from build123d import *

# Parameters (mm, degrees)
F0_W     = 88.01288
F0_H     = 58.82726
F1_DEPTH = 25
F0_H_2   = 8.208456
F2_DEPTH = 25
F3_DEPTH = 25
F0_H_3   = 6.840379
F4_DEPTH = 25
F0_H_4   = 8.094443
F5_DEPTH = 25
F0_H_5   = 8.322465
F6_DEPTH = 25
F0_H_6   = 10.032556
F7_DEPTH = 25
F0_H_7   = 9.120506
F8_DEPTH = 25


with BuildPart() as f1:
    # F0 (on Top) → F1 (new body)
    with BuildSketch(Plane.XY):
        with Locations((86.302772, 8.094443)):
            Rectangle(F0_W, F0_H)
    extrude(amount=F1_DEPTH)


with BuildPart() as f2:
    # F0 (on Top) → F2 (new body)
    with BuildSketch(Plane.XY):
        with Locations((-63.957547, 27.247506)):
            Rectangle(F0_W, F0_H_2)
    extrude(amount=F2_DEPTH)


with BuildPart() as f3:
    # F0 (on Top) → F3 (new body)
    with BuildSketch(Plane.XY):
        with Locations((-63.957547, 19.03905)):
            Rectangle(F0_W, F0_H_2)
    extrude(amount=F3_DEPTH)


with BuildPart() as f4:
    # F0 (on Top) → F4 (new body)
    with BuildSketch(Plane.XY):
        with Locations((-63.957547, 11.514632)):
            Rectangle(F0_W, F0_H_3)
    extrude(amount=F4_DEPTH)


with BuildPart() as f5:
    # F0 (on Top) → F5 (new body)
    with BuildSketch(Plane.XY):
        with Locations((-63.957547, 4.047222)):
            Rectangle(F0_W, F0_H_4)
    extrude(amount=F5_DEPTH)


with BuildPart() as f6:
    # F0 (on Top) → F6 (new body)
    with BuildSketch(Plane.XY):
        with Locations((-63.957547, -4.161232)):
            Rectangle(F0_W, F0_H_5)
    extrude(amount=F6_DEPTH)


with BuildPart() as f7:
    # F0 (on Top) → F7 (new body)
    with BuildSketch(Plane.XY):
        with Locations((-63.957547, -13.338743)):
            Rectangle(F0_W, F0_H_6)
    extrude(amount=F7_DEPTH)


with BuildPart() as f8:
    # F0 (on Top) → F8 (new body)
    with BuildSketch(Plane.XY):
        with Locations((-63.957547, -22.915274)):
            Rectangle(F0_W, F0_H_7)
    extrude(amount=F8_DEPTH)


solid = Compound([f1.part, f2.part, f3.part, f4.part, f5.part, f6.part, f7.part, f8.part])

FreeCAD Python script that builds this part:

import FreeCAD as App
import Part
import Sketcher
from FreeCAD import Vector


def add_polygon(sketch, points):
    """Adds a closed chain of lines whose ends are joined by coincident constraints."""
    first, n = sketch.GeometryCount, len(points)
    for a, b in zip(points, points[1:] + points[:1]):
        sketch.addGeometry(Part.LineSegment(App.Vector(*a, 0), App.Vector(*b, 0)), False)
    for i in range(n):
        sketch.addConstraint(Sketcher.Constraint("Coincident", first + i, 2, first + (i + 1) % n, 1))

doc = App.newDocument("Part")
body = doc.addObject("PartDesign::Body", "Body")

# Sketch on XY plane
sketch1 = body.newObject("Sketcher::SketchObject", "Sketch")
sketch1.AttachmentSupport = (doc.getObject("XY_Plane"), [""])
sketch1.MapMode = "FlatFace"
add_polygon(sketch1, [(42.296332, 37.508073), (42.296332, -21.319187), (130.309212, -21.319187), (130.309212, 37.508073)])  # lines 0-3
sketch1.addConstraint([
    Sketcher.Constraint("Vertical", 0),
    Sketcher.Constraint("Horizontal", 1),
    Sketcher.Constraint("Vertical", 2),
    Sketcher.Constraint("Horizontal", 3),
    Sketcher.Constraint("DistanceX", 1, 1, 1, 2, 88.01288),
    Sketcher.Constraint("DistanceY", 0, 2, 0, 1, 58.82726),
    Sketcher.Constraint("DistanceX", -1, 1, 1, 2, 130.309212),
    Sketcher.Constraint("DistanceY", 0, 2, -1, 1, 21.319187),
])
pad1 = body.newObject("PartDesign::Pad", "Pad")
pad1.Profile = sketch1
pad1.Length = 25
body2 = doc.addObject("PartDesign::Body", "Body001")

# Sketch on XY plane
sketch2 = body2.newObject("Sketcher::SketchObject", "Sketch001")
sketch2.AttachmentSupport = (doc.getObject("XY_Plane001"), [""])
sketch2.MapMode = "FlatFace"
add_polygon(sketch2, [(-107.963987, 31.351734), (-107.963987, 23.143278), (-19.951107, 23.143278), (-19.951107, 31.351734)])  # lines 0-3
sketch2.addConstraint([
    Sketcher.Constraint("Vertical", 0),
    Sketcher.Constraint("Horizontal", 1),
    Sketcher.Constraint("Vertical", 2),
    Sketcher.Constraint("Horizontal", 3),
    Sketcher.Constraint("DistanceX", 1, 1, 1, 2, 88.01288),
    Sketcher.Constraint("DistanceY", 0, 2, 0, 1, 8.208456),
    Sketcher.Constraint("DistanceX", 0, 2, -1, 1, 107.963987),
    Sketcher.Constraint("DistanceY", -1, 1, 0, 2, 23.143278),
])
pad2 = body2.newObject("PartDesign::Pad", "Pad001")
pad2.Profile = sketch2
pad2.Length = 25
body3 = doc.addObject("PartDesign::Body", "Body002")

# Sketch on XY plane
sketch3 = body3.newObject("Sketcher::SketchObject", "Sketch002")
sketch3.AttachmentSupport = (doc.getObject("XY_Plane002"), [""])
sketch3.MapMode = "FlatFace"
add_polygon(sketch3, [(-107.963987, 23.143278), (-107.963987, 14.934822), (-19.951107, 14.934822), (-19.951107, 23.143278)])  # lines 0-3
sketch3.addConstraint([
    Sketcher.Constraint("Vertical", 0),
    Sketcher.Constraint("Horizontal", 1),
    Sketcher.Constraint("Vertical", 2),
    Sketcher.Constraint("Horizontal", 3),
    Sketcher.Constraint("DistanceX", 1, 1, 1, 2, 88.01288),
    Sketcher.Constraint("DistanceY", 0, 2, 0, 1, 8.208456),
    Sketcher.Constraint("DistanceX", 0, 2, -1, 1, 107.963987),
    Sketcher.Constraint("DistanceY", -1, 1, 0, 2, 14.934822),
])
pad3 = body3.newObject("PartDesign::Pad", "Pad002")
pad3.Profile = sketch3
pad3.Length = 25
body4 = doc.addObject("PartDesign::Body", "Body003")

# Sketch on XY plane
sketch4 = body4.newObject("Sketcher::SketchObject", "Sketch003")
sketch4.AttachmentSupport = (doc.getObject("XY_Plane003"), [""])
sketch4.MapMode = "FlatFace"
add_polygon(sketch4, [(-107.963987, 14.934821), (-107.963987, 8.094442), (-19.951107, 8.094442), (-19.951107, 14.934821)])  # lines 0-3
sketch4.addConstraint([
    Sketcher.Constraint("Vertical", 0),
    Sketcher.Constraint("Horizontal", 1),
    Sketcher.Constraint("Vertical", 2),
    Sketcher.Constraint("Horizontal", 3),
    Sketcher.Constraint("DistanceX", 1, 1, 1, 2, 88.01288),
    Sketcher.Constraint("DistanceY", 0, 2, 0, 1, 6.840379),
    Sketcher.Constraint("DistanceY", -1, 1, 2, 2, 14.934821),
    Sketcher.Constraint("DistanceX", 0, 2, -1, 1, 107.963987),
])
pad4 = body4.newObject("PartDesign::Pad", "Pad003")
pad4.Profile = sketch4
pad4.Length = 25
body5 = doc.addObject("PartDesign::Body", "Body004")

# Sketch on XY plane
sketch5 = body5.newObject("Sketcher::SketchObject", "Sketch004")
sketch5.AttachmentSupport = (doc.getObject("XY_Plane004"), [""])
sketch5.MapMode = "FlatFace"
add_polygon(sketch5, [(-107.963987, 8.094444), (-107.963987, 0), (-19.951107, 0), (-19.951107, 8.094444)])  # lines 0-3
sketch5.addConstraint([
    Sketcher.Constraint("Vertical", 0),
    Sketcher.Constraint("Horizontal", 1),
    Sketcher.Constraint("Vertical", 2),
    Sketcher.Constraint("Horizontal", 3),
    Sketcher.Constraint("PointOnObject", 0, 2, -1),
    Sketcher.Constraint("DistanceX", 1, 1, 1, 2, 88.01288),
    Sketcher.Constraint("DistanceY", 0, 2, 0, 1, 8.094443),
    Sketcher.Constraint("DistanceX", 0, 2, -1, 1, 107.963987),
])
pad5 = body5.newObject("PartDesign::Pad", "Pad004")
pad5.Profile = sketch5
pad5.Length = 25
body6 = doc.addObject("PartDesign::Body", "Body005")

# Sketch on XY plane
sketch6 = body6.newObject("Sketcher::SketchObject", "Sketch005")
sketch6.AttachmentSupport = (doc.getObject("XY_Plane005"), [""])
sketch6.MapMode = "FlatFace"
add_polygon(sketch6, [(-107.963987, 0), (-107.963987, -8.322465), (-19.951107, -8.322465), (-19.951107, 0)])  # lines 0-3
sketch6.addConstraint([
    Sketcher.Constraint("Vertical", 0),
    Sketcher.Constraint("Horizontal", 1),
    Sketcher.Constraint("Vertical", 2),
    Sketcher.Constraint("Horizontal", 3),
    Sketcher.Constraint("PointOnObject", 2, 2, -1),
    Sketcher.Constraint("DistanceX", 1, 1, 1, 2, 88.01288),
    Sketcher.Constraint("DistanceY", 0, 2, 0, 1, 8.322465),
    Sketcher.Constraint("DistanceX", 0, 2, -1, 1, 107.963987),
])
pad6 = body6.newObject("PartDesign::Pad", "Pad005")
pad6.Profile = sketch6
pad6.Length = 25
body7 = doc.addObject("PartDesign::Body", "Body006")

# Sketch on XY plane
sketch7 = body7.newObject("Sketcher::SketchObject", "Sketch006")
sketch7.AttachmentSupport = (doc.getObject("XY_Plane006"), [""])
sketch7.MapMode = "FlatFace"
add_polygon(sketch7, [(-107.963987, -8.322465), (-107.963987, -18.355021), (-19.951107, -18.355021), (-19.951107, -8.322465)])  # lines 0-3
sketch7.addConstraint([
    Sketcher.Constraint("Vertical", 0),
    Sketcher.Constraint("Horizontal", 1),
    Sketcher.Constraint("Vertical", 2),
    Sketcher.Constraint("Horizontal", 3),
    Sketcher.Constraint("DistanceX", 1, 1, 1, 2, 88.01288),
    Sketcher.Constraint("DistanceY", 0, 2, 0, 1, 10.032556),
    Sketcher.Constraint("DistanceY", 0, 2, -1, 1, 18.355021),
    Sketcher.Constraint("DistanceX", 0, 2, -1, 1, 107.963987),
])
pad7 = body7.newObject("PartDesign::Pad", "Pad006")
pad7.Profile = sketch7
pad7.Length = 25
body8 = doc.addObject("PartDesign::Body", "Body007")

# Sketch on XY plane
sketch8 = body8.newObject("Sketcher::SketchObject", "Sketch007")
sketch8.AttachmentSupport = (doc.getObject("XY_Plane007"), [""])
sketch8.MapMode = "FlatFace"
add_polygon(sketch8, [(-107.963987, -18.355021), (-107.963987, -27.475527), (-19.951107, -27.475527), (-19.951107, -18.355021)])  # lines 0-3
sketch8.addConstraint([
    Sketcher.Constraint("Vertical", 0),
    Sketcher.Constraint("Horizontal", 1),
    Sketcher.Constraint("Vertical", 2),
    Sketcher.Constraint("Horizontal", 3),
    Sketcher.Constraint("DistanceX", 1, 1, 1, 2, 88.01288),
    Sketcher.Constraint("DistanceY", 0, 2, 0, 1, 9.120506),
    Sketcher.Constraint("DistanceY", 2, 2, -1, 1, 18.355021),
    Sketcher.Constraint("DistanceX", 0, 2, -1, 1, 107.963987),
])
pad8 = body8.newObject("PartDesign::Pad", "Pad007")
pad8.Profile = sketch8
pad8.Length = 25

doc.recompute()
